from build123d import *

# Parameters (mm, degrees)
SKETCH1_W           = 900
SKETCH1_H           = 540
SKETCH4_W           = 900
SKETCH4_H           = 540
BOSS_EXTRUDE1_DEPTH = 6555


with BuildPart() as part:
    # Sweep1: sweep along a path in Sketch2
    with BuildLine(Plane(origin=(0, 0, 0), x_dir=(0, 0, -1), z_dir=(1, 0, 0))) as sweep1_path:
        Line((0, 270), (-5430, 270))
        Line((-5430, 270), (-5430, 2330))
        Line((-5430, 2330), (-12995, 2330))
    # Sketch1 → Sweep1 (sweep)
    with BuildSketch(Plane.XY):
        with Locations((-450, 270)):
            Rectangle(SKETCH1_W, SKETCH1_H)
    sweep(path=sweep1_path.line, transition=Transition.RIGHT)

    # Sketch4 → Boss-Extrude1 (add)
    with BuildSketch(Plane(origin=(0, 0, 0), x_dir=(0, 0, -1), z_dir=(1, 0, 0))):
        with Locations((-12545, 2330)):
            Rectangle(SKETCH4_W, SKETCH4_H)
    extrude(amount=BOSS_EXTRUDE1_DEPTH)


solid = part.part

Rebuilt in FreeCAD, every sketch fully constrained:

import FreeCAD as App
import Part
import Sketcher
from FreeCAD import Vector
Q = App.Units.Quantity

doc = App.newDocument("Part")
body = doc.addObject("PartDesign::Body", "Body")

# Sketch on XY plane
sketch1 = body.newObject("Sketcher::SketchObject", "Sketch")
sketch1.AttachmentSupport = (doc.getObject("XY_Plane"), [""])
sketch1.MapMode = "FlatFace"
sketch1.addGeometry([
    Part.LineSegment(Vector(-900, 540, 0), Vector(-900, 0, 0)),
    Part.LineSegment(Vector(-900, 0, 0), Vector(0, 0, 0)),
    Part.LineSegment(Vector(0, 0, 0), Vector(0, 540, 0)),
    Part.LineSegment(Vector(0, 540, 0), Vector(-900, 540, 0)),
], False)
sketch1.addConstraint([
    Sketcher.Constraint("Coincident", 0, 2, 1, 1),
    Sketcher.Constraint("Coincident", 1, 2, 2, 1),
    Sketcher.Constraint("Coincident", 2, 2, 3, 1),
    Sketcher.Constraint("Coincident", 3, 2, 0, 1),
    Sketcher.Constraint("Vertical", 0),
    Sketcher.Constraint("Horizontal", 1),
    Sketcher.Constraint("Vertical", 2),
    Sketcher.Constraint("Horizontal", 3),
    Sketcher.Constraint("Coincident", 1, 2, -1, 1),
    Sketcher.Constraint("DistanceX", 1, 1, 1, 2, Q("900 mm")),
    Sketcher.Constraint("DistanceY", 0, 2, 0, 1, Q("540 mm")),
])

# Sketch on YZ plane
sketch2 = body.newObject("Sketcher::SketchObject", "Sketch001")
sketch2.AttachmentSupport = (doc.getObject("YZ_Plane"), [""])
sketch2.MapMode = "FlatFace"
sketch2.addGeometry([
    Part.LineSegment(Vector(270, 0, 0), Vector(270, 5430, 0)),
    Part.LineSegment(Vector(270, 5430, 0), Vector(2330, 5430, 0)),
    Part.LineSegment(Vector(2330, 5430, 0), Vector(2330, 12995, 0)),
], False)
sketch2.addConstraint([
    Sketcher.Constraint("Coincident", 0, 2, 1, 1),
    Sketcher.Constraint("Coincident", 1, 2, 2, 1),
    Sketcher.Constraint("Vertical", 0),
    Sketcher.Constraint("Horizontal", 1),
    Sketcher.Constraint("Vertical", 2),
    Sketcher.Constraint("PointOnObject", 0, 1, -1),
    Sketcher.Constraint("DistanceX", 1, 1, 1, 2, Q("2060 mm")),
    Sketcher.Constraint("DistanceY", 0, 1, 0, 2, Q("5430 mm")),
    Sketcher.Constraint("DistanceY", 2, 1, 2, 2, Q("7565 mm")),
    Sketcher.Constraint("DistanceX", -1, 1, 0, 1, Q("270 mm")),
])
doc.recompute()

additivepipe = body.newObject("PartDesign::AdditivePipe", "AdditivePipe")
additivepipe.Profile = sketch1
additivepipe.Spine = (sketch2, ["Edge1", "Edge2", "Edge3"])
additivepipe.Transition = "Right corner"

# Sketch on YZ plane
sketch3 = body.newObject("Sketcher::SketchObject", "Sketch002")
sketch3.AttachmentSupport = (doc.getObject("YZ_Plane"), [""])
sketch3.MapMode = "FlatFace"
sketch3.addGeometry([
    Part.LineSegment(Vector(2600, 12995, 0), Vector(2060, 12995, 0)),
    Part.LineSegment(Vector(2060, 12995, 0), Vector(2060, 12095, 0)),
    Part.LineSegment(Vector(2060, 12095, 0), Vector(2600, 12095, 0)),
    Part.LineSegment(Vector(2600, 12095, 0), Vector(2600, 12995, 0)),
], False)
sketch3.addConstraint([
    Sketcher.Constraint("Coincident", 0, 2, 1, 1),
    Sketcher.Constraint("Coincident", 1, 2, 2, 1),
    Sketcher.Constraint("Coincident", 2, 2, 3, 1),
    Sketcher.Constraint("Coincident", 3, 2, 0, 1),
    Sketcher.Constraint("Horizontal", 0),
    Sketcher.Constraint("Vertical", 1),
    Sketcher.Constraint("Horizontal", 2),
    Sketcher.Constraint("Vertical", 3),
    Sketcher.Constraint("DistanceX", 0, 2, 0, 1, Q("540 mm")),
    Sketcher.Constraint("DistanceY", 1, 2, 1, 1, Q("900 mm")),
    Sketcher.Constraint("DistanceX", -1, 1, 0, 2, Q("2060 mm")),
    Sketcher.Constraint("DistanceY", -1, 1, 0, 2, Q("12995 mm")),
])
pad1 = body.newObject("PartDesign::Pad", "Pad")
pad1.Profile = sketch3
pad1.Length = 6555

doc.recompute()
